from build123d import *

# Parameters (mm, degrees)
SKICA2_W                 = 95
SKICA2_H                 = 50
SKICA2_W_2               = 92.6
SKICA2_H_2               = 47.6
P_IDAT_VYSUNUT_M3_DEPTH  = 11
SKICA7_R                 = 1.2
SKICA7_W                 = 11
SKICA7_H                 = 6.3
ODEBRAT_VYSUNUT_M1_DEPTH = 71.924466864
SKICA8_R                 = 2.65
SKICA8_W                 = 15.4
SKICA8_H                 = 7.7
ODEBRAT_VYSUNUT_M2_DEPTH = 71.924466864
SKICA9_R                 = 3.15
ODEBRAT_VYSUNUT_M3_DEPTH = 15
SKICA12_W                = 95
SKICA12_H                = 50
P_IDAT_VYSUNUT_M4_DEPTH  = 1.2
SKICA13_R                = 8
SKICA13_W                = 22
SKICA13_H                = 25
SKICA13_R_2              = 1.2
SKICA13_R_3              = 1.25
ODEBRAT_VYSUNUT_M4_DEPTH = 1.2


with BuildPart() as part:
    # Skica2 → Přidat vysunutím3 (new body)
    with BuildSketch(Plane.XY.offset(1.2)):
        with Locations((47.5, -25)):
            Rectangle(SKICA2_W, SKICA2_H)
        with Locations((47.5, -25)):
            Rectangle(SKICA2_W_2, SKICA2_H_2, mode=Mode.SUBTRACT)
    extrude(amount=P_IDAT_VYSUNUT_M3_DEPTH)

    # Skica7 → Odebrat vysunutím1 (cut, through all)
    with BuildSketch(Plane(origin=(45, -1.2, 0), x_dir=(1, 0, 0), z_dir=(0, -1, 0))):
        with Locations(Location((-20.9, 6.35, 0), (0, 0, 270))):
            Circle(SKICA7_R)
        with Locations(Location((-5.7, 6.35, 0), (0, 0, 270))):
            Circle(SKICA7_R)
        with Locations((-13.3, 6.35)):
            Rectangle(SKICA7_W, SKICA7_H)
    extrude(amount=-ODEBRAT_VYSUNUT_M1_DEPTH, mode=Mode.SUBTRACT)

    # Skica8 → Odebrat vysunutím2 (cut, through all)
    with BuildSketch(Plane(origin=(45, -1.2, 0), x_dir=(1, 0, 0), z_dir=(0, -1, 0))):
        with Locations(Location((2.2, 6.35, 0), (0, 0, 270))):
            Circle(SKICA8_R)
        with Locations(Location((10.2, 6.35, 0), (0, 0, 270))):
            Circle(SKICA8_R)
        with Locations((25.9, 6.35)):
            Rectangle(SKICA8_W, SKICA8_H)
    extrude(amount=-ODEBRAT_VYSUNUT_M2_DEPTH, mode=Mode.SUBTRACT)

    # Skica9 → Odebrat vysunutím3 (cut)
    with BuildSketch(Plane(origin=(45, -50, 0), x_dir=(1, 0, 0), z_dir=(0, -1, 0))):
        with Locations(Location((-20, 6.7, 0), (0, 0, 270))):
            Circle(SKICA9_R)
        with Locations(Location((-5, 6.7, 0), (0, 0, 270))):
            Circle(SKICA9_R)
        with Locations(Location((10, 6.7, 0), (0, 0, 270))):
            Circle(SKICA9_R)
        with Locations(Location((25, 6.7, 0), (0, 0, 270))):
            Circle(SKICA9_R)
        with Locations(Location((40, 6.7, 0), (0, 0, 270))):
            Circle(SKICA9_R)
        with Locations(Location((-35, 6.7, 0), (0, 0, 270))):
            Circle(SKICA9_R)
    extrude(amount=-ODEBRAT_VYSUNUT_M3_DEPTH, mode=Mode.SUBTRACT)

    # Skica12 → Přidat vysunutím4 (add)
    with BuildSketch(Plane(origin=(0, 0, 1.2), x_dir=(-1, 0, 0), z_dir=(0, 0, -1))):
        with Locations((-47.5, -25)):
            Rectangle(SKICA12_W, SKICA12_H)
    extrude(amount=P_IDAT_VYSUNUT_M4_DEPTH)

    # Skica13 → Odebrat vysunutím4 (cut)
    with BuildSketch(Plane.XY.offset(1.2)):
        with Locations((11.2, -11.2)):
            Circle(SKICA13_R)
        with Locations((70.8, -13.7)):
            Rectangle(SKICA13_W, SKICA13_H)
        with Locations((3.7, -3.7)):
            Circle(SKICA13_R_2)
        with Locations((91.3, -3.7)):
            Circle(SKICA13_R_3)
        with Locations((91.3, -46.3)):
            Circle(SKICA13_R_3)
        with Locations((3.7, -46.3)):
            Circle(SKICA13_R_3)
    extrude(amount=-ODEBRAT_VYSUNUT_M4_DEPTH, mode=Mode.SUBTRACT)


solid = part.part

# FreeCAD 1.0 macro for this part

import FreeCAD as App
import Part
import Sketcher


def add_polygon(sketch, points):
    """Adds a closed chain of lines whose ends are joined by coincident constraints."""
    first, n = sketch.GeometryCount, len(points)
    for a, b in zip(points, points[1:] + points[:1]):
        sketch.addGeometry(Part.LineSegment(App.Vector(*a, 0), App.Vector(*b, 0)), False)
    for i in range(n):
        sketch.addConstraint(Sketcher.Constraint("Coincident", first + i, 2, first + (i + 1) % n, 1))

doc = App.newDocument("Part")
body = doc.addObject("PartDesign::Body", "Body")

# Sketch on XY plane
sketch1 = body.newObject("Sketcher::SketchObject", "Sketch")
sketch1.AttachmentSupport = (doc.getObject("XY_Plane"), [""])
sketch1.MapMode = "FlatFace"
sketch1.AttachmentOffset = App.Placement(App.Vector(0, 0, 1.2), App.Rotation())
add_polygon(sketch1, [(0, 0), (0, -50), (95, -50), (95, 0)])  # lines 0-3
add_polygon(sketch1, [(94, -49), (1, -49), (1, -1), (94, -1)])  # lines 4-7
sketch1.addConstraint([
    Sketcher.Constraint("Vertical", 0),
    Sketcher.Constraint("Horizontal", 1),
    Sketcher.Constraint("Vertical", 2),
    Sketcher.Constraint("Horizontal", 3),
    Sketcher.Constraint("Horizontal", 4),
    Sketcher.Constraint("Vertical", 5),
    Sketcher.Constraint("Horizontal", 6),
    Sketcher.Constraint("Vertical", 7),
    Sketcher.Constraint("Coincident", 3, 2, -1, 1),
    Sketcher.Constraint("DistanceX", 1, 1, 1, 2, 95.0),
    Sketcher.Constraint("DistanceY", 0, 2, 0, 1, 50.0),
    Sketcher.Constraint("DistanceX", 4, 2, 4, 1, 92.6),
    Sketcher.Constraint("DistanceY", 5, 1, 5, 2, 47.6),
    Sketcher.Constraint("DistanceX", -1, 1, 4, 2, 1.2),
    Sketcher.Constraint("DistanceY", 4, 2, -1, 1, 48.8),
])
pad1 = body.newObject("PartDesign::Pad", "Pad")
pad1.Profile = sketch1
pad1.Length = 11

# Sketch on XZ plane
sketch2 = body.newObject("Sketcher::SketchObject", "Sketch001")
sketch2.AttachmentSupport = (doc.getObject("XZ_Plane"), [""])
sketch2.MapMode = "FlatFace"
sketch2.AttachmentOffset = App.Placement(App.Vector(0, 0, 1.2), App.Rotation())
sketch2.addGeometry(Part.Circle(App.Vector(24.1, 6.3, 0), App.Vector(0, 0, 1), 1.2), False)  # 0
sketch2.addGeometry(Part.Circle(App.Vector(39.3, 6.3, 0), App.Vector(0, 0, 1), 1.2), False)  # 1
add_polygon(sketch2, [(26.2, 9.5), (26.2, 3.2), (37.2, 3.2), (37.2, 9.5)])  # lines 2-5
sketch2.addConstraint([
    Sketcher.Constraint("Vertical", 2),
    Sketcher.Constraint("Horizontal", 3),
    Sketcher.Constraint("Vertical", 4),
    Sketcher.Constraint("Horizontal", 5),
    Sketcher.Constraint("Equal", 0, 1),
    Sketcher.Constraint("Horizontal", 0, 3, 1, 3),
    Sketcher.Constraint("Diameter", 0, 2.4),
    Sketcher.Constraint("DistanceX", 3, 1, 3, 2, 11.0),
    Sketcher.Constraint("DistanceY", 2, 2, 2, 1, 6.3),
    Sketcher.Constraint("DistanceX", -1, 1, 0, 3, 24.1),
    Sketcher.Constraint("DistanceX", -1, 1, 1, 3, 39.3),
    Sketcher.Constraint("DistanceX", -1, 1, 2, 2, 26.2),
    Sketcher.Constraint("DistanceY", -1, 1, 2, 2, 3.2),
    Sketcher.Constraint("DistanceY", -1, 1, 0, 3, 6.35),
])
pocket1 = body.newObject("PartDesign::Pocket", "Pocket")
pocket1.Profile = sketch2
pocket1.Type = "ThroughAll"

# Sketch on XZ plane
sketch3 = body.newObject("Sketcher::SketchObject", "Sketch002")
sketch3.AttachmentSupport = (doc.getObject("XZ_Plane"), [""])
sketch3.MapMode = "FlatFace"
sketch3.AttachmentOffset = App.Placement(App.Vector(0, 0, 1.2), App.Rotation())
sketch3.addGeometry(Part.Circle(App.Vector(47.2, 6.3, 0), App.Vector(0, 0, 1), 2.6), False)  # 0
sketch3.addGeometry(Part.Circle(App.Vector(55.2, 6.3, 0), App.Vector(0, 0, 1), 2.6), False)  # 1
add_polygon(sketch3, [(63.2, 10.2), (63.2, 2.5), (78.6, 2.5), (78.6, 10.2)])  # lines 2-5
sketch3.addConstraint([
    Sketcher.Constraint("Vertical", 2),
    Sketcher.Constraint("Horizontal", 3),
    Sketcher.Constraint("Vertical", 4),
    Sketcher.Constraint("Horizontal", 5),
    Sketcher.Constraint("Equal", 0, 1),
    Sketcher.Constraint("Horizontal", 0, 3, 1, 3),
    Sketcher.Constraint("Diameter", 0, 5.3),
    Sketcher.Constraint("DistanceX", 3, 1, 3, 2, 15.4),
    Sketcher.Constraint("DistanceY", 2, 2, 2, 1, 7.7),
    Sketcher.Constraint("DistanceX", 0, 3, 1, 3, 8.0),
    Sketcher.Constraint("DistanceX", 1, 3, 2, 2, 8.0),
    Sketcher.Constraint("DistanceX", -1, 1, 0, 3, 47.2),
    Sketcher.Constraint("DistanceY", -1, 1, 2, 2, 2.5),
    Sketcher.Constraint("DistanceY", -1, 1, 0, 3, 6.35),
])
pocket2 = body.newObject("PartDesign::Pocket", "Pocket001")
pocket2.Profile = sketch3
pocket2.Type = "ThroughAll"

# Sketch on XZ plane
sketch4 = body.newObject("Sketcher::SketchObject", "Sketch003")
sketch4.AttachmentSupport = (doc.getObject("XZ_Plane"), [""])
sketch4.MapMode = "FlatFace"
sketch4.AttachmentOffset = App.Placement(App.Vector(0, 0, 50), App.Rotation())
sketch4.addGeometry([
    Part.Circle(App.Vector(25, 6.7, 0), App.Vector(0, 0, 1), 3.1),  # 0
    Part.Circle(App.Vector(40, 6.7, 0), App.Vector(0, 0, 1), 3.1),  # 1
    Part.Circle(App.Vector(55, 6.7, 0), App.Vector(0, 0, 1), 3.1),  # 2
    Part.Circle(App.Vector(70, 6.7, 0), App.Vector(0, 0, 1), 3.1),  # 3
    Part.Circle(App.Vector(85, 6.7, 0), App.Vector(0, 0, 1), 3.1),  # 4
    Part.Circle(App.Vector(10, 6.7, 0), App.Vector(0, 0, 1), 3.1),  # 5
], False)
sketch4.addConstraint([
    Sketcher.Constraint("Equal", 0, 1),
    Sketcher.Constraint("Equal", 1, 2),
    Sketcher.Constraint("Equal", 2, 3),
    Sketcher.Constraint("Equal", 3, 4),
    Sketcher.Constraint("Equal", 4, 5),
    Sketcher.Constraint("Horizontal", 0, 3, 1, 3),
    Sketcher.Constraint("Horizontal", 1, 3, 2, 3),
    Sketcher.Constraint("Horizontal", 2, 3, 3, 3),
    Sketcher.Constraint("Horizontal", 3, 3, 4, 3),
    Sketcher.Constraint("Horizontal", 4, 3, 5, 3),
    Sketcher.Constraint("Diameter", 0, 6.3),
    Sketcher.Constraint("DistanceX", -1, 1, 0, 3, 25.0),
    Sketcher.Constraint("DistanceX", -1, 1, 1, 3, 40.0),
    Sketcher.Constraint("DistanceX", -1, 1, 2, 3, 55.0),
    Sketcher.Constraint("DistanceX", -1, 1, 3, 3, 70.0),
    Sketcher.Constraint("DistanceX", -1, 1, 4, 3, 85.0),
    Sketcher.Constraint("DistanceX", -1, 1, 5, 3, 10.0),
    Sketcher.Constraint("DistanceY", -1, 1, 0, 3, 6.7),
])
pocket3 = body.newObject("PartDesign::Pocket", "Pocket002")
pocket3.Profile = sketch4
pocket3.Length = 15

# Sketch on XY plane
sketch5 = body.newObject("Sketcher::SketchObject", "Sketch004")
sketch5.AttachmentSupport = (doc.getObject("XY_Plane"), [""])
sketch5.MapMode = "FlatFace"
sketch5.AttachmentOffset = App.Placement(App.Vector(0, 0, 1.2), App.Rotation())
add_polygon(sketch5, [(95, 0), (95, -50), (0, -50), (0, 0)])  # lines 0-3
sketch5.addConstraint([
    Sketcher.Constraint("Vertical", 0),
    Sketcher.Constraint("Horizontal", 1),
    Sketcher.Constraint("Vertical", 2),
    Sketcher.Constraint("Horizontal", 3),
    Sketcher.Constraint("Coincident", 2, 2, -1, 1),
    Sketcher.Constraint("DistanceX", 1, 2, 1, 1, 95.0),
    Sketcher.Constraint("DistanceY", 0, 2, 0, 1, 50.0),
])
pad2 = body.newObject("PartDesign::Pad", "Pad001")
pad2.Profile = sketch5
pad2.Length = 1.2
pad2.Reversed = True

# Sketch on XY plane
sketch6 = body.newObject("Sketcher::SketchObject", "Sketch005")
sketch6.AttachmentSupport = (doc.getObject("XY_Plane"), [""])
sketch6.MapMode = "FlatFace"
sketch6.AttachmentOffset = App.Placement(App.Vector(0, 0, 1.2), App.Rotation())
sketch6.addGeometry(Part.Circle(App.Vector(11.2, -11.2, 0), App.Vector(0, 0, 1), 8), False)  # 0
add_polygon(sketch6, [(59.8, -1.2), (59.8, -26.2), (81.8, -26.2), (81.8, -1.2)])  # lines 1-4
sketch6.addGeometry(Part.Circle(App.Vector(3.7, -3.7, 0), App.Vector(0, 0, 1), 1.2), False)  # 5
sketch6.addGeometry(Part.Circle(App.Vector(91.3, -3.7, 0), App.Vector(0, 0, 1), 1.2), False)  # 6
sketch6.addGeometry(Part.Circle(App.Vector(91.3, -46.3, 0), App.Vector(0, 0, 1), 1.2), False)  # 7
sketch6.addGeometry(Part.Circle(App.Vector(3.7, -46.3, 0), App.Vector(0, 0, 1), 1.2), False)  # 8
sketch6.addConstraint([
    Sketcher.Constraint("Vertical", 1),
    Sketcher.Constraint("Horizontal", 2),
    Sketcher.Constraint("Vertical", 3),
    Sketcher.Constraint("Horizontal", 4),
    Sketcher.Constraint("Equal", 6, 7),
    Sketcher.Constraint("Equal", 7, 8),
    Sketcher.Constraint("Horizontal", 5, 3, 6, 3),
    Sketcher.Constraint("Horizontal", 7, 3, 8, 3),
    Sketcher.Constraint("Vertical", 6, 3, 7, 3),
    Sketcher.Constraint("Vertical", 5, 3, 8, 3),
    Sketcher.Constraint("Diameter", 0, 16.0),
    Sketcher.Constraint("Diameter", 5, 2.4),
    Sketcher.Constraint("Diameter", 6, 2.5),
    Sketcher.Constraint("DistanceX", 2, 1, 2, 2, 22.0),
    Sketcher.Constraint("DistanceY", 1, 2, 1, 1, 25.0),
    Sketcher.Constraint("DistanceY", 1, 2, 0, 3, 15.0),
    Sketcher.Constraint("DistanceX", -1, 1, 0, 3, 11.2),
    Sketcher.Constraint("DistanceY", 0, 3, -1, 1, 11.2),
    Sketcher.Constraint("DistanceX", -1, 1, 5, 3, 3.7),
    Sketcher.Constraint("DistanceY", 5, 3, -1, 1, 3.7),
    Sketcher.Constraint("DistanceX", -1, 1, 6, 3, 91.3),
    Sketcher.Constraint("DistanceY", 7, 3, -1, 1, 46.3),
    Sketcher.Constraint("DistanceX", -1, 1, 1, 2, 59.8),
])
pocket4 = body.newObject("PartDesign::Pocket", "Pocket003")
pocket4.Profile = sketch6
pocket4.Length = 1.2

doc.recompute()
